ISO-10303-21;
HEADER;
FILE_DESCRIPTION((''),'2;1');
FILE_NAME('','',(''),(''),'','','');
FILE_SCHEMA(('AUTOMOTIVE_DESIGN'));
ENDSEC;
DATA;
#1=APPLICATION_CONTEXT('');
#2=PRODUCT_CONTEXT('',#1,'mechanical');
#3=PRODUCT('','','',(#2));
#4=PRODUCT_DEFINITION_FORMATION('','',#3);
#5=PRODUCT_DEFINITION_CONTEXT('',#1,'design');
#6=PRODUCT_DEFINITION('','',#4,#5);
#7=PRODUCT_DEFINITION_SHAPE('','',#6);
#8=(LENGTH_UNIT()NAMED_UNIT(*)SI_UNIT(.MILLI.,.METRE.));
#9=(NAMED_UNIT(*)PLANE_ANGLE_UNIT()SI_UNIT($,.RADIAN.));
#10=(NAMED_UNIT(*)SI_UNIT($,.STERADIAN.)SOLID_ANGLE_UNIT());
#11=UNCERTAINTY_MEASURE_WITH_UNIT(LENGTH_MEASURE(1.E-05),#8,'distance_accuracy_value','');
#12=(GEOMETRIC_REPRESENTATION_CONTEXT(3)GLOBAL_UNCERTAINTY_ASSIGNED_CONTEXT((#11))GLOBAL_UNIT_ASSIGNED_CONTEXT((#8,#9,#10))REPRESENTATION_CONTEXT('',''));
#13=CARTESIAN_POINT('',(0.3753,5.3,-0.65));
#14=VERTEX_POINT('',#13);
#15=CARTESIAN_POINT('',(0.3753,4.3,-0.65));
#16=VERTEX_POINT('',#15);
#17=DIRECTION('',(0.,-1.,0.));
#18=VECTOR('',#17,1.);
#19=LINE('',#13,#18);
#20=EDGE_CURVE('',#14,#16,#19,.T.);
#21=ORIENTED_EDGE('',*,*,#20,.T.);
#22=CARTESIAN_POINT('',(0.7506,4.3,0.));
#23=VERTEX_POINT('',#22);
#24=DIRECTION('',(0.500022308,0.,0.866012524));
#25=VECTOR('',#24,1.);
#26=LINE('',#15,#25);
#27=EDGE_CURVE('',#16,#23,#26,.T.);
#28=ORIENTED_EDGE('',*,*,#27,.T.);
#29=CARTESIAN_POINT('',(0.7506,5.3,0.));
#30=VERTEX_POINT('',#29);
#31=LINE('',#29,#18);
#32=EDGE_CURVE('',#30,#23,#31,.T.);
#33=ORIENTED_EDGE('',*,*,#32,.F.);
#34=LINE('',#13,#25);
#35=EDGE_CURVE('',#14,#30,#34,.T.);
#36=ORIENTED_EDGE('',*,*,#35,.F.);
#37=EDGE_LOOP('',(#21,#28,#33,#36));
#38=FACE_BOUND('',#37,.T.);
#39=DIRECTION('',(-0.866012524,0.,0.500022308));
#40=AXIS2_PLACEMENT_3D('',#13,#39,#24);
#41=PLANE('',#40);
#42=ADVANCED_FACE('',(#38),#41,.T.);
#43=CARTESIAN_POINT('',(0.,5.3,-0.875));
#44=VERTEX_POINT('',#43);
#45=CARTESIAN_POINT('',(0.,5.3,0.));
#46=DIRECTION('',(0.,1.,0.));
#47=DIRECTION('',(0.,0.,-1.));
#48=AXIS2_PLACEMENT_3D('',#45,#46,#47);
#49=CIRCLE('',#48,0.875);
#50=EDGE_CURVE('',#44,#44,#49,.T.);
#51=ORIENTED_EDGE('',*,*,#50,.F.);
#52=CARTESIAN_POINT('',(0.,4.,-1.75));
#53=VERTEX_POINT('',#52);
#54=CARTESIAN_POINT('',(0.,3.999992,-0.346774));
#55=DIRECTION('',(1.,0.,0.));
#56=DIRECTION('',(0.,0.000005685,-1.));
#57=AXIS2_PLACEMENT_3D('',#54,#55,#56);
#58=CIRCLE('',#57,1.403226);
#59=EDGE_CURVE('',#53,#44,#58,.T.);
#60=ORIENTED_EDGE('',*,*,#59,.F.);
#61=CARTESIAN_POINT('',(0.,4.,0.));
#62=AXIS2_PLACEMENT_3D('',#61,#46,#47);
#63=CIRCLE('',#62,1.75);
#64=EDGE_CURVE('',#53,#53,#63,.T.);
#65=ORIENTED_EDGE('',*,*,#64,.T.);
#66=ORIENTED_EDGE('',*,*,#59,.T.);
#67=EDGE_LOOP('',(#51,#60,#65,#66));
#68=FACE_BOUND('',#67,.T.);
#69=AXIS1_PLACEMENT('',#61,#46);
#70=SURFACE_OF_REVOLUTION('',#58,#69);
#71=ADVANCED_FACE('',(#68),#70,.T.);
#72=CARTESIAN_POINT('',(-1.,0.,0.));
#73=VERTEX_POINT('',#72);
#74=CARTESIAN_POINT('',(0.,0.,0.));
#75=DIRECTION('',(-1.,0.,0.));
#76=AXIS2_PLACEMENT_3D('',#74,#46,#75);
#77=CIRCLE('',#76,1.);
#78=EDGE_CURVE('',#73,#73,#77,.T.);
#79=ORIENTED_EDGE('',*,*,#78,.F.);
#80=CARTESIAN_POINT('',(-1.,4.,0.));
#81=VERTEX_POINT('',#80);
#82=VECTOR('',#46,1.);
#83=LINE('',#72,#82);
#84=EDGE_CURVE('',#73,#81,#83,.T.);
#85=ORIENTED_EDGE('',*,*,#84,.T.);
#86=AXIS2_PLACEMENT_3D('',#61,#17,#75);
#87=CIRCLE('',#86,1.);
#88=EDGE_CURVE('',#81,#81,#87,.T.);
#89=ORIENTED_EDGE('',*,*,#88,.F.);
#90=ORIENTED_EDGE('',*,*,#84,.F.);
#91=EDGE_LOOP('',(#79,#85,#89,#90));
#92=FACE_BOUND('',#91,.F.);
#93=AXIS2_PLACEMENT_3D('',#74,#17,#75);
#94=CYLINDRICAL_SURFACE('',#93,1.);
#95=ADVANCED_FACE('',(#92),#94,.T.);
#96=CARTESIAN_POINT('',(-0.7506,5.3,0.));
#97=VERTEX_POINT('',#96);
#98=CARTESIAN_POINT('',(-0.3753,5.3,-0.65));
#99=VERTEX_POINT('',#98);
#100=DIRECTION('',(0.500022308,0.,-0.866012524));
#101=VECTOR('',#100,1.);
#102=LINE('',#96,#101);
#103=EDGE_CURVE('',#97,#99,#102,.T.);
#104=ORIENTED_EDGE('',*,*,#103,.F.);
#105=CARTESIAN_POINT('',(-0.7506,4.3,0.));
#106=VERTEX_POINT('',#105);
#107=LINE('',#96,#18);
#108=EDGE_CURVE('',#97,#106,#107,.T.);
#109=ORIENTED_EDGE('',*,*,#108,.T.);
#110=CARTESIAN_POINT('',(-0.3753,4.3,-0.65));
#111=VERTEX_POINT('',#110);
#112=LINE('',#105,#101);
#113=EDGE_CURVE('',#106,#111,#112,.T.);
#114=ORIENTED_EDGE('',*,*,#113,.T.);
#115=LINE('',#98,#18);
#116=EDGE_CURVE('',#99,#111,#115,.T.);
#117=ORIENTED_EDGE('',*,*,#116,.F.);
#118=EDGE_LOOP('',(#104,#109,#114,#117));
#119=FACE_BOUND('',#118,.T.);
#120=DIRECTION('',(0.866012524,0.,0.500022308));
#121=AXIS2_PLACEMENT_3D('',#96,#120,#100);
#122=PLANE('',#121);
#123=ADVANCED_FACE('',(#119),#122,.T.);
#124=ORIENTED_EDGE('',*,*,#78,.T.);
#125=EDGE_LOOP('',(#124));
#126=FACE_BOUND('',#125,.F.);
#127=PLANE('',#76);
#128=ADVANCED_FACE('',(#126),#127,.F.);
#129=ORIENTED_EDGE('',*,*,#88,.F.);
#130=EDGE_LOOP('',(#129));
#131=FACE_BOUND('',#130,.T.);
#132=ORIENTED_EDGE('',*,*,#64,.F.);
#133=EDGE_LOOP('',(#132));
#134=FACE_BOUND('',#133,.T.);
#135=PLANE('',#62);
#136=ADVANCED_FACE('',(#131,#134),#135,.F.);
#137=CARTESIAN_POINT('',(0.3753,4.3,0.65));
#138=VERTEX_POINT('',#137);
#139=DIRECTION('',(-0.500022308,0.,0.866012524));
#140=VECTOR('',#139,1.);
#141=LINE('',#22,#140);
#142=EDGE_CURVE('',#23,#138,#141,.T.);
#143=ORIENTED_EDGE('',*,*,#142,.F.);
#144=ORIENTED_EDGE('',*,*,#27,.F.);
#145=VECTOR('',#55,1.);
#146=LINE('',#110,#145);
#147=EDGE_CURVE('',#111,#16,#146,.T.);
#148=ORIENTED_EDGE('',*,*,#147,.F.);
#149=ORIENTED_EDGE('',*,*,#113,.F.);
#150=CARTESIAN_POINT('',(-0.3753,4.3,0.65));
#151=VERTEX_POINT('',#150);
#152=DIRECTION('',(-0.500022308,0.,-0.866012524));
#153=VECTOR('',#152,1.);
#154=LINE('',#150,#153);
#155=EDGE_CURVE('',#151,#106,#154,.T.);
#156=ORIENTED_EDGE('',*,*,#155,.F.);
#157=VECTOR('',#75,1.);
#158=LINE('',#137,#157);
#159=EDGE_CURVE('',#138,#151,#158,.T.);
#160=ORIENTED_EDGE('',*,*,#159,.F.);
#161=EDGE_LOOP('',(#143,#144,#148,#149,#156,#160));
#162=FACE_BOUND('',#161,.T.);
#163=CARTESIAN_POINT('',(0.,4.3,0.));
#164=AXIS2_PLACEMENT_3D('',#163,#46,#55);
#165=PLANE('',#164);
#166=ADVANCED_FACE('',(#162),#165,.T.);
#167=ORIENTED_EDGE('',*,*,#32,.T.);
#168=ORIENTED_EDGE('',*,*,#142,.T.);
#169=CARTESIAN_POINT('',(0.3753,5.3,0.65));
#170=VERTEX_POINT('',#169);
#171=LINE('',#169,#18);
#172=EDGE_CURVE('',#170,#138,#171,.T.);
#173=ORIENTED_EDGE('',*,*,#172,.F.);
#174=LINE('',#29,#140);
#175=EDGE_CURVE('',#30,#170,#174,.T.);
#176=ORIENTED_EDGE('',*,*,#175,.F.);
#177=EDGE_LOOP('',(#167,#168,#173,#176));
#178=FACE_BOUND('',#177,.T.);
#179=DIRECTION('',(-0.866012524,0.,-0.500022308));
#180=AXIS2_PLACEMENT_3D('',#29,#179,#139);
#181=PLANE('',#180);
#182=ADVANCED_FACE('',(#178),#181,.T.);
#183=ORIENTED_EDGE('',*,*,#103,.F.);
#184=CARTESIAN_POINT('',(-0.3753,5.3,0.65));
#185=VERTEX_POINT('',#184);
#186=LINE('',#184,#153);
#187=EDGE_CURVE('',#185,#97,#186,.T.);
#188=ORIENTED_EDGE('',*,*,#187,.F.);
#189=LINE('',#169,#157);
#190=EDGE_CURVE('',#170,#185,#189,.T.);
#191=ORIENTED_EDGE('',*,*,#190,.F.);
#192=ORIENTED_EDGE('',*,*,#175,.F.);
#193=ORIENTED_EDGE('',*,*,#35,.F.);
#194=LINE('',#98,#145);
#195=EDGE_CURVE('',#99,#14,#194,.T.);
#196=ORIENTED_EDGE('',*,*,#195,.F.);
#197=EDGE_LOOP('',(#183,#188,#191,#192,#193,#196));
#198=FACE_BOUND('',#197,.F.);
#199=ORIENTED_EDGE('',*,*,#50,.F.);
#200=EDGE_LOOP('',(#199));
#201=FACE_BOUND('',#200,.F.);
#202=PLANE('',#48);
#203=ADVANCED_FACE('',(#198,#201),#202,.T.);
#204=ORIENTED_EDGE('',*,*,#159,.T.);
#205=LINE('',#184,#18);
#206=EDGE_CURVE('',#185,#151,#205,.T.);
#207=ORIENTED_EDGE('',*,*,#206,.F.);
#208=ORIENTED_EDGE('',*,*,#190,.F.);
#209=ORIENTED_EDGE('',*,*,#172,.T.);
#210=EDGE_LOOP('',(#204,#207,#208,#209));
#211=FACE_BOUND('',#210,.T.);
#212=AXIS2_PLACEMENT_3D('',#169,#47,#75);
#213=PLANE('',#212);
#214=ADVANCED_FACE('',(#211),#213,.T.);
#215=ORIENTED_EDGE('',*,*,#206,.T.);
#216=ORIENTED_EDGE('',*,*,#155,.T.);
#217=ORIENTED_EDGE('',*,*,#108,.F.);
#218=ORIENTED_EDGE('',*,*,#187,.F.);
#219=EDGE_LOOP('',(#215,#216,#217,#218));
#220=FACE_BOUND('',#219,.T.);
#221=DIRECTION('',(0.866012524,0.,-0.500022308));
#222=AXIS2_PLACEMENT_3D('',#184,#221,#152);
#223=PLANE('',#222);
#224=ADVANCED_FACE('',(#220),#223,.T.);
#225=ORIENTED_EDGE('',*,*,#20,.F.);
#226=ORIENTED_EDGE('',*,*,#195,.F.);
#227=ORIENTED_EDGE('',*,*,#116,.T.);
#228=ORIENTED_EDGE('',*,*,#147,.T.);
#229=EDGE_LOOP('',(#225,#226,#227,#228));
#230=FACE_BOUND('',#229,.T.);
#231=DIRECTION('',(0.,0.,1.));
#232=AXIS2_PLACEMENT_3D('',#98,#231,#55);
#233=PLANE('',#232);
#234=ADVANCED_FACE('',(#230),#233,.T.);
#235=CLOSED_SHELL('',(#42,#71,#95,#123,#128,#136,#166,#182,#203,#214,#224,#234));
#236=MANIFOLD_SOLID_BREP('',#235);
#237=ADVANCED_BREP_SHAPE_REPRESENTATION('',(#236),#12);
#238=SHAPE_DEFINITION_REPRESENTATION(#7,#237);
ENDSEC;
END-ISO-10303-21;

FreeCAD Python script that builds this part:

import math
import FreeCAD as App
import Part
import Sketcher
Q = App.Units.Quantity

doc = App.newDocument("Part")
body = doc.addObject("PartDesign::Body", "Body")

# Sketch on XZ plane
sketch1 = body.newObject("Sketcher::SketchObject", "Sketch")
sketch1.AttachmentSupport = (doc.getObject("XZ_Plane"), [""])
sketch1.MapMode = "FlatFace"
sketch1.addGeometry(Part.Circle(App.Vector(0, 0, 0), App.Vector(0, 0, 1), 1), False)
sketch1.addConstraint(Sketcher.Constraint("Coincident", 0, 3, -1, 1))
sketch1.addConstraint(Sketcher.Constraint("Diameter", 0, Q("2 mm")))
pad1 = body.newObject("PartDesign::Pad", "Pad")
pad1.Profile = sketch1
pad1.Length = 4
pad1.Reversed = True

# Sketch on YZ plane
sketch2 = body.newObject("Sketcher::SketchObject", "Sketch001")
sketch2.AttachmentSupport = (doc.getObject("YZ_Plane"), [""])
sketch2.MapMode = "FlatFace"
sketch2.addGeometry(Part.LineSegment(App.Vector(4, 0, 0), App.Vector(4, -1.8, 0)), False)
sketch2.addGeometry(Part.ArcOfCircle(Part.Circle(App.Vector(4, -0.3, 0), App.Vector(0, 0, 1), 1.4), math.radians(-90), math.radians(-22)), False)
sketch2.addGeometry(Part.LineSegment(App.Vector(5.3, -0.9, 0), App.Vector(5.3, 0, 0)), False)
sketch2.addGeometry(Part.LineSegment(App.Vector(5.3, 0, 0), App.Vector(4, 0, 0)), False)
sketch2.addConstraint(Sketcher.Constraint("Coincident", 0, 2, 1, 1))
sketch2.addConstraint(Sketcher.Constraint("Coincident", 1, 2, 2, 1))
sketch2.addConstraint(Sketcher.Constraint("Coincident", 2, 2, 3, 1))
sketch2.addConstraint(Sketcher.Constraint("Coincident", 3, 2, 0, 1))
sketch2.addConstraint(Sketcher.Constraint("Vertical", 0))
sketch2.addConstraint(Sketcher.Constraint("Vertical", 2))
sketch2.addConstraint(Sketcher.Constraint("Horizontal", 3))
sketch2.addConstraint(Sketcher.Constraint("PointOnObject", 2, 2, -1))
sketch2.addConstraint(Sketcher.Constraint("Vertical", 1, 3, 0, 2))
sketch2.addConstraint(Sketcher.Constraint("DistanceX", 3, 2, 3, 1, Q("1.3 mm")))
sketch2.addConstraint(Sketcher.Constraint("DistanceY", 0, 2, 0, 1, Q("1.75 mm")))
sketch2.addConstraint(Sketcher.Constraint("DistanceX", -1, 1, 1, 3, Q("4 mm")))
sketch2.addConstraint(Sketcher.Constraint("Radius", 1, Q("1.4032 mm")))
revolution = body.newObject("PartDesign::Revolution", "Revolution")
revolution.Profile = sketch2
revolution.ReferenceAxis = (sketch2, ["H_Axis"])
revolution.Angle = 360

# Sketch on XZ plane
sketch3 = body.newObject("Sketcher::SketchObject", "Sketch002")
sketch3.AttachmentSupport = (doc.getObject("XZ_Plane"), [""])
sketch3.MapMode = "FlatFace"
sketch3.AttachmentOffset = App.Placement(App.Vector(0, 0, -5.3), App.Rotation())
sketch3.addGeometry(Part.LineSegment(App.Vector(0.8, 0, 0), App.Vector(0.4, -0.7, 0)), False)
sketch3.addGeometry(Part.LineSegment(App.Vector(0.4, -0.7, 0), App.Vector(-0.4, -0.7, 0)), False)
sketch3.addGeometry(Part.LineSegment(App.Vector(-0.4, -0.7, 0), App.Vector(-0.8, 0, 0)), False)
sketch3.addGeometry(Part.LineSegment(App.Vector(-0.8, 0, 0), App.Vector(-0.4, 0.7, 0)), False)
sketch3.addGeometry(Part.LineSegment(App.Vector(-0.4, 0.7, 0), App.Vector(0.4, 0.7, 0)), False)
sketch3.addGeometry(Part.LineSegment(App.Vector(0.4, 0.7, 0), App.Vector(0.8, 0, 0)), False)
sketch3.addConstraint(Sketcher.Constraint("Coincident", 0, 2, 1, 1))
sketch3.addConstraint(Sketcher.Constraint("Coincident", 1, 2, 2, 1))
sketch3.addConstraint(Sketcher.Constraint("Coincident", 2, 2, 3, 1))
sketch3.addConstraint(Sketcher.Constraint("Coincident", 3, 2, 4, 1))
sketch3.addConstraint(Sketcher.Constraint("Coincident", 4, 2, 5, 1))
sketch3.addConstraint(Sketcher.Constraint("Coincident", 5, 2, 0, 1))
sketch3.addConstraint(Sketcher.Constraint("Horizontal", 1))
sketch3.addConstraint(Sketcher.Constraint("Horizontal", 4))
sketch3.addConstraint(Sketcher.Constraint("Symmetric", 0, 2, 3, 2, -1, 1))
sketch3.addConstraint(Sketcher.Constraint("Symmetric", 2, 2, 5, 2, -1, 1))
sketch3.addConstraint(Sketcher.Constraint("PointOnObject", 2, 2, -1))
sketch3.addConstraint(Sketcher.Constraint("Parallel", 2, 5))
sketch3.addConstraint(Sketcher.Constraint("Vertical", 1, 2, 3, 2))
sketch3.addConstraint(Sketcher.Constraint("DistanceY", 0, 2, -1, 1, Q("0.65 mm")))
sketch3.addConstraint(Sketcher.Constraint("DistanceX", 1, 2, 1, 1, Q("0.7506 mm")))
sketch3.addConstraint(Sketcher.Constraint("DistanceX", 2, 2, 0, 2, Q("1.126 mm")))
pocket1 = body.newObject("PartDesign::Pocket", "Pocket")
pocket1.Profile = sketch3
pocket1.Length = 1
pocket1.Reversed = True

doc.recompute()
